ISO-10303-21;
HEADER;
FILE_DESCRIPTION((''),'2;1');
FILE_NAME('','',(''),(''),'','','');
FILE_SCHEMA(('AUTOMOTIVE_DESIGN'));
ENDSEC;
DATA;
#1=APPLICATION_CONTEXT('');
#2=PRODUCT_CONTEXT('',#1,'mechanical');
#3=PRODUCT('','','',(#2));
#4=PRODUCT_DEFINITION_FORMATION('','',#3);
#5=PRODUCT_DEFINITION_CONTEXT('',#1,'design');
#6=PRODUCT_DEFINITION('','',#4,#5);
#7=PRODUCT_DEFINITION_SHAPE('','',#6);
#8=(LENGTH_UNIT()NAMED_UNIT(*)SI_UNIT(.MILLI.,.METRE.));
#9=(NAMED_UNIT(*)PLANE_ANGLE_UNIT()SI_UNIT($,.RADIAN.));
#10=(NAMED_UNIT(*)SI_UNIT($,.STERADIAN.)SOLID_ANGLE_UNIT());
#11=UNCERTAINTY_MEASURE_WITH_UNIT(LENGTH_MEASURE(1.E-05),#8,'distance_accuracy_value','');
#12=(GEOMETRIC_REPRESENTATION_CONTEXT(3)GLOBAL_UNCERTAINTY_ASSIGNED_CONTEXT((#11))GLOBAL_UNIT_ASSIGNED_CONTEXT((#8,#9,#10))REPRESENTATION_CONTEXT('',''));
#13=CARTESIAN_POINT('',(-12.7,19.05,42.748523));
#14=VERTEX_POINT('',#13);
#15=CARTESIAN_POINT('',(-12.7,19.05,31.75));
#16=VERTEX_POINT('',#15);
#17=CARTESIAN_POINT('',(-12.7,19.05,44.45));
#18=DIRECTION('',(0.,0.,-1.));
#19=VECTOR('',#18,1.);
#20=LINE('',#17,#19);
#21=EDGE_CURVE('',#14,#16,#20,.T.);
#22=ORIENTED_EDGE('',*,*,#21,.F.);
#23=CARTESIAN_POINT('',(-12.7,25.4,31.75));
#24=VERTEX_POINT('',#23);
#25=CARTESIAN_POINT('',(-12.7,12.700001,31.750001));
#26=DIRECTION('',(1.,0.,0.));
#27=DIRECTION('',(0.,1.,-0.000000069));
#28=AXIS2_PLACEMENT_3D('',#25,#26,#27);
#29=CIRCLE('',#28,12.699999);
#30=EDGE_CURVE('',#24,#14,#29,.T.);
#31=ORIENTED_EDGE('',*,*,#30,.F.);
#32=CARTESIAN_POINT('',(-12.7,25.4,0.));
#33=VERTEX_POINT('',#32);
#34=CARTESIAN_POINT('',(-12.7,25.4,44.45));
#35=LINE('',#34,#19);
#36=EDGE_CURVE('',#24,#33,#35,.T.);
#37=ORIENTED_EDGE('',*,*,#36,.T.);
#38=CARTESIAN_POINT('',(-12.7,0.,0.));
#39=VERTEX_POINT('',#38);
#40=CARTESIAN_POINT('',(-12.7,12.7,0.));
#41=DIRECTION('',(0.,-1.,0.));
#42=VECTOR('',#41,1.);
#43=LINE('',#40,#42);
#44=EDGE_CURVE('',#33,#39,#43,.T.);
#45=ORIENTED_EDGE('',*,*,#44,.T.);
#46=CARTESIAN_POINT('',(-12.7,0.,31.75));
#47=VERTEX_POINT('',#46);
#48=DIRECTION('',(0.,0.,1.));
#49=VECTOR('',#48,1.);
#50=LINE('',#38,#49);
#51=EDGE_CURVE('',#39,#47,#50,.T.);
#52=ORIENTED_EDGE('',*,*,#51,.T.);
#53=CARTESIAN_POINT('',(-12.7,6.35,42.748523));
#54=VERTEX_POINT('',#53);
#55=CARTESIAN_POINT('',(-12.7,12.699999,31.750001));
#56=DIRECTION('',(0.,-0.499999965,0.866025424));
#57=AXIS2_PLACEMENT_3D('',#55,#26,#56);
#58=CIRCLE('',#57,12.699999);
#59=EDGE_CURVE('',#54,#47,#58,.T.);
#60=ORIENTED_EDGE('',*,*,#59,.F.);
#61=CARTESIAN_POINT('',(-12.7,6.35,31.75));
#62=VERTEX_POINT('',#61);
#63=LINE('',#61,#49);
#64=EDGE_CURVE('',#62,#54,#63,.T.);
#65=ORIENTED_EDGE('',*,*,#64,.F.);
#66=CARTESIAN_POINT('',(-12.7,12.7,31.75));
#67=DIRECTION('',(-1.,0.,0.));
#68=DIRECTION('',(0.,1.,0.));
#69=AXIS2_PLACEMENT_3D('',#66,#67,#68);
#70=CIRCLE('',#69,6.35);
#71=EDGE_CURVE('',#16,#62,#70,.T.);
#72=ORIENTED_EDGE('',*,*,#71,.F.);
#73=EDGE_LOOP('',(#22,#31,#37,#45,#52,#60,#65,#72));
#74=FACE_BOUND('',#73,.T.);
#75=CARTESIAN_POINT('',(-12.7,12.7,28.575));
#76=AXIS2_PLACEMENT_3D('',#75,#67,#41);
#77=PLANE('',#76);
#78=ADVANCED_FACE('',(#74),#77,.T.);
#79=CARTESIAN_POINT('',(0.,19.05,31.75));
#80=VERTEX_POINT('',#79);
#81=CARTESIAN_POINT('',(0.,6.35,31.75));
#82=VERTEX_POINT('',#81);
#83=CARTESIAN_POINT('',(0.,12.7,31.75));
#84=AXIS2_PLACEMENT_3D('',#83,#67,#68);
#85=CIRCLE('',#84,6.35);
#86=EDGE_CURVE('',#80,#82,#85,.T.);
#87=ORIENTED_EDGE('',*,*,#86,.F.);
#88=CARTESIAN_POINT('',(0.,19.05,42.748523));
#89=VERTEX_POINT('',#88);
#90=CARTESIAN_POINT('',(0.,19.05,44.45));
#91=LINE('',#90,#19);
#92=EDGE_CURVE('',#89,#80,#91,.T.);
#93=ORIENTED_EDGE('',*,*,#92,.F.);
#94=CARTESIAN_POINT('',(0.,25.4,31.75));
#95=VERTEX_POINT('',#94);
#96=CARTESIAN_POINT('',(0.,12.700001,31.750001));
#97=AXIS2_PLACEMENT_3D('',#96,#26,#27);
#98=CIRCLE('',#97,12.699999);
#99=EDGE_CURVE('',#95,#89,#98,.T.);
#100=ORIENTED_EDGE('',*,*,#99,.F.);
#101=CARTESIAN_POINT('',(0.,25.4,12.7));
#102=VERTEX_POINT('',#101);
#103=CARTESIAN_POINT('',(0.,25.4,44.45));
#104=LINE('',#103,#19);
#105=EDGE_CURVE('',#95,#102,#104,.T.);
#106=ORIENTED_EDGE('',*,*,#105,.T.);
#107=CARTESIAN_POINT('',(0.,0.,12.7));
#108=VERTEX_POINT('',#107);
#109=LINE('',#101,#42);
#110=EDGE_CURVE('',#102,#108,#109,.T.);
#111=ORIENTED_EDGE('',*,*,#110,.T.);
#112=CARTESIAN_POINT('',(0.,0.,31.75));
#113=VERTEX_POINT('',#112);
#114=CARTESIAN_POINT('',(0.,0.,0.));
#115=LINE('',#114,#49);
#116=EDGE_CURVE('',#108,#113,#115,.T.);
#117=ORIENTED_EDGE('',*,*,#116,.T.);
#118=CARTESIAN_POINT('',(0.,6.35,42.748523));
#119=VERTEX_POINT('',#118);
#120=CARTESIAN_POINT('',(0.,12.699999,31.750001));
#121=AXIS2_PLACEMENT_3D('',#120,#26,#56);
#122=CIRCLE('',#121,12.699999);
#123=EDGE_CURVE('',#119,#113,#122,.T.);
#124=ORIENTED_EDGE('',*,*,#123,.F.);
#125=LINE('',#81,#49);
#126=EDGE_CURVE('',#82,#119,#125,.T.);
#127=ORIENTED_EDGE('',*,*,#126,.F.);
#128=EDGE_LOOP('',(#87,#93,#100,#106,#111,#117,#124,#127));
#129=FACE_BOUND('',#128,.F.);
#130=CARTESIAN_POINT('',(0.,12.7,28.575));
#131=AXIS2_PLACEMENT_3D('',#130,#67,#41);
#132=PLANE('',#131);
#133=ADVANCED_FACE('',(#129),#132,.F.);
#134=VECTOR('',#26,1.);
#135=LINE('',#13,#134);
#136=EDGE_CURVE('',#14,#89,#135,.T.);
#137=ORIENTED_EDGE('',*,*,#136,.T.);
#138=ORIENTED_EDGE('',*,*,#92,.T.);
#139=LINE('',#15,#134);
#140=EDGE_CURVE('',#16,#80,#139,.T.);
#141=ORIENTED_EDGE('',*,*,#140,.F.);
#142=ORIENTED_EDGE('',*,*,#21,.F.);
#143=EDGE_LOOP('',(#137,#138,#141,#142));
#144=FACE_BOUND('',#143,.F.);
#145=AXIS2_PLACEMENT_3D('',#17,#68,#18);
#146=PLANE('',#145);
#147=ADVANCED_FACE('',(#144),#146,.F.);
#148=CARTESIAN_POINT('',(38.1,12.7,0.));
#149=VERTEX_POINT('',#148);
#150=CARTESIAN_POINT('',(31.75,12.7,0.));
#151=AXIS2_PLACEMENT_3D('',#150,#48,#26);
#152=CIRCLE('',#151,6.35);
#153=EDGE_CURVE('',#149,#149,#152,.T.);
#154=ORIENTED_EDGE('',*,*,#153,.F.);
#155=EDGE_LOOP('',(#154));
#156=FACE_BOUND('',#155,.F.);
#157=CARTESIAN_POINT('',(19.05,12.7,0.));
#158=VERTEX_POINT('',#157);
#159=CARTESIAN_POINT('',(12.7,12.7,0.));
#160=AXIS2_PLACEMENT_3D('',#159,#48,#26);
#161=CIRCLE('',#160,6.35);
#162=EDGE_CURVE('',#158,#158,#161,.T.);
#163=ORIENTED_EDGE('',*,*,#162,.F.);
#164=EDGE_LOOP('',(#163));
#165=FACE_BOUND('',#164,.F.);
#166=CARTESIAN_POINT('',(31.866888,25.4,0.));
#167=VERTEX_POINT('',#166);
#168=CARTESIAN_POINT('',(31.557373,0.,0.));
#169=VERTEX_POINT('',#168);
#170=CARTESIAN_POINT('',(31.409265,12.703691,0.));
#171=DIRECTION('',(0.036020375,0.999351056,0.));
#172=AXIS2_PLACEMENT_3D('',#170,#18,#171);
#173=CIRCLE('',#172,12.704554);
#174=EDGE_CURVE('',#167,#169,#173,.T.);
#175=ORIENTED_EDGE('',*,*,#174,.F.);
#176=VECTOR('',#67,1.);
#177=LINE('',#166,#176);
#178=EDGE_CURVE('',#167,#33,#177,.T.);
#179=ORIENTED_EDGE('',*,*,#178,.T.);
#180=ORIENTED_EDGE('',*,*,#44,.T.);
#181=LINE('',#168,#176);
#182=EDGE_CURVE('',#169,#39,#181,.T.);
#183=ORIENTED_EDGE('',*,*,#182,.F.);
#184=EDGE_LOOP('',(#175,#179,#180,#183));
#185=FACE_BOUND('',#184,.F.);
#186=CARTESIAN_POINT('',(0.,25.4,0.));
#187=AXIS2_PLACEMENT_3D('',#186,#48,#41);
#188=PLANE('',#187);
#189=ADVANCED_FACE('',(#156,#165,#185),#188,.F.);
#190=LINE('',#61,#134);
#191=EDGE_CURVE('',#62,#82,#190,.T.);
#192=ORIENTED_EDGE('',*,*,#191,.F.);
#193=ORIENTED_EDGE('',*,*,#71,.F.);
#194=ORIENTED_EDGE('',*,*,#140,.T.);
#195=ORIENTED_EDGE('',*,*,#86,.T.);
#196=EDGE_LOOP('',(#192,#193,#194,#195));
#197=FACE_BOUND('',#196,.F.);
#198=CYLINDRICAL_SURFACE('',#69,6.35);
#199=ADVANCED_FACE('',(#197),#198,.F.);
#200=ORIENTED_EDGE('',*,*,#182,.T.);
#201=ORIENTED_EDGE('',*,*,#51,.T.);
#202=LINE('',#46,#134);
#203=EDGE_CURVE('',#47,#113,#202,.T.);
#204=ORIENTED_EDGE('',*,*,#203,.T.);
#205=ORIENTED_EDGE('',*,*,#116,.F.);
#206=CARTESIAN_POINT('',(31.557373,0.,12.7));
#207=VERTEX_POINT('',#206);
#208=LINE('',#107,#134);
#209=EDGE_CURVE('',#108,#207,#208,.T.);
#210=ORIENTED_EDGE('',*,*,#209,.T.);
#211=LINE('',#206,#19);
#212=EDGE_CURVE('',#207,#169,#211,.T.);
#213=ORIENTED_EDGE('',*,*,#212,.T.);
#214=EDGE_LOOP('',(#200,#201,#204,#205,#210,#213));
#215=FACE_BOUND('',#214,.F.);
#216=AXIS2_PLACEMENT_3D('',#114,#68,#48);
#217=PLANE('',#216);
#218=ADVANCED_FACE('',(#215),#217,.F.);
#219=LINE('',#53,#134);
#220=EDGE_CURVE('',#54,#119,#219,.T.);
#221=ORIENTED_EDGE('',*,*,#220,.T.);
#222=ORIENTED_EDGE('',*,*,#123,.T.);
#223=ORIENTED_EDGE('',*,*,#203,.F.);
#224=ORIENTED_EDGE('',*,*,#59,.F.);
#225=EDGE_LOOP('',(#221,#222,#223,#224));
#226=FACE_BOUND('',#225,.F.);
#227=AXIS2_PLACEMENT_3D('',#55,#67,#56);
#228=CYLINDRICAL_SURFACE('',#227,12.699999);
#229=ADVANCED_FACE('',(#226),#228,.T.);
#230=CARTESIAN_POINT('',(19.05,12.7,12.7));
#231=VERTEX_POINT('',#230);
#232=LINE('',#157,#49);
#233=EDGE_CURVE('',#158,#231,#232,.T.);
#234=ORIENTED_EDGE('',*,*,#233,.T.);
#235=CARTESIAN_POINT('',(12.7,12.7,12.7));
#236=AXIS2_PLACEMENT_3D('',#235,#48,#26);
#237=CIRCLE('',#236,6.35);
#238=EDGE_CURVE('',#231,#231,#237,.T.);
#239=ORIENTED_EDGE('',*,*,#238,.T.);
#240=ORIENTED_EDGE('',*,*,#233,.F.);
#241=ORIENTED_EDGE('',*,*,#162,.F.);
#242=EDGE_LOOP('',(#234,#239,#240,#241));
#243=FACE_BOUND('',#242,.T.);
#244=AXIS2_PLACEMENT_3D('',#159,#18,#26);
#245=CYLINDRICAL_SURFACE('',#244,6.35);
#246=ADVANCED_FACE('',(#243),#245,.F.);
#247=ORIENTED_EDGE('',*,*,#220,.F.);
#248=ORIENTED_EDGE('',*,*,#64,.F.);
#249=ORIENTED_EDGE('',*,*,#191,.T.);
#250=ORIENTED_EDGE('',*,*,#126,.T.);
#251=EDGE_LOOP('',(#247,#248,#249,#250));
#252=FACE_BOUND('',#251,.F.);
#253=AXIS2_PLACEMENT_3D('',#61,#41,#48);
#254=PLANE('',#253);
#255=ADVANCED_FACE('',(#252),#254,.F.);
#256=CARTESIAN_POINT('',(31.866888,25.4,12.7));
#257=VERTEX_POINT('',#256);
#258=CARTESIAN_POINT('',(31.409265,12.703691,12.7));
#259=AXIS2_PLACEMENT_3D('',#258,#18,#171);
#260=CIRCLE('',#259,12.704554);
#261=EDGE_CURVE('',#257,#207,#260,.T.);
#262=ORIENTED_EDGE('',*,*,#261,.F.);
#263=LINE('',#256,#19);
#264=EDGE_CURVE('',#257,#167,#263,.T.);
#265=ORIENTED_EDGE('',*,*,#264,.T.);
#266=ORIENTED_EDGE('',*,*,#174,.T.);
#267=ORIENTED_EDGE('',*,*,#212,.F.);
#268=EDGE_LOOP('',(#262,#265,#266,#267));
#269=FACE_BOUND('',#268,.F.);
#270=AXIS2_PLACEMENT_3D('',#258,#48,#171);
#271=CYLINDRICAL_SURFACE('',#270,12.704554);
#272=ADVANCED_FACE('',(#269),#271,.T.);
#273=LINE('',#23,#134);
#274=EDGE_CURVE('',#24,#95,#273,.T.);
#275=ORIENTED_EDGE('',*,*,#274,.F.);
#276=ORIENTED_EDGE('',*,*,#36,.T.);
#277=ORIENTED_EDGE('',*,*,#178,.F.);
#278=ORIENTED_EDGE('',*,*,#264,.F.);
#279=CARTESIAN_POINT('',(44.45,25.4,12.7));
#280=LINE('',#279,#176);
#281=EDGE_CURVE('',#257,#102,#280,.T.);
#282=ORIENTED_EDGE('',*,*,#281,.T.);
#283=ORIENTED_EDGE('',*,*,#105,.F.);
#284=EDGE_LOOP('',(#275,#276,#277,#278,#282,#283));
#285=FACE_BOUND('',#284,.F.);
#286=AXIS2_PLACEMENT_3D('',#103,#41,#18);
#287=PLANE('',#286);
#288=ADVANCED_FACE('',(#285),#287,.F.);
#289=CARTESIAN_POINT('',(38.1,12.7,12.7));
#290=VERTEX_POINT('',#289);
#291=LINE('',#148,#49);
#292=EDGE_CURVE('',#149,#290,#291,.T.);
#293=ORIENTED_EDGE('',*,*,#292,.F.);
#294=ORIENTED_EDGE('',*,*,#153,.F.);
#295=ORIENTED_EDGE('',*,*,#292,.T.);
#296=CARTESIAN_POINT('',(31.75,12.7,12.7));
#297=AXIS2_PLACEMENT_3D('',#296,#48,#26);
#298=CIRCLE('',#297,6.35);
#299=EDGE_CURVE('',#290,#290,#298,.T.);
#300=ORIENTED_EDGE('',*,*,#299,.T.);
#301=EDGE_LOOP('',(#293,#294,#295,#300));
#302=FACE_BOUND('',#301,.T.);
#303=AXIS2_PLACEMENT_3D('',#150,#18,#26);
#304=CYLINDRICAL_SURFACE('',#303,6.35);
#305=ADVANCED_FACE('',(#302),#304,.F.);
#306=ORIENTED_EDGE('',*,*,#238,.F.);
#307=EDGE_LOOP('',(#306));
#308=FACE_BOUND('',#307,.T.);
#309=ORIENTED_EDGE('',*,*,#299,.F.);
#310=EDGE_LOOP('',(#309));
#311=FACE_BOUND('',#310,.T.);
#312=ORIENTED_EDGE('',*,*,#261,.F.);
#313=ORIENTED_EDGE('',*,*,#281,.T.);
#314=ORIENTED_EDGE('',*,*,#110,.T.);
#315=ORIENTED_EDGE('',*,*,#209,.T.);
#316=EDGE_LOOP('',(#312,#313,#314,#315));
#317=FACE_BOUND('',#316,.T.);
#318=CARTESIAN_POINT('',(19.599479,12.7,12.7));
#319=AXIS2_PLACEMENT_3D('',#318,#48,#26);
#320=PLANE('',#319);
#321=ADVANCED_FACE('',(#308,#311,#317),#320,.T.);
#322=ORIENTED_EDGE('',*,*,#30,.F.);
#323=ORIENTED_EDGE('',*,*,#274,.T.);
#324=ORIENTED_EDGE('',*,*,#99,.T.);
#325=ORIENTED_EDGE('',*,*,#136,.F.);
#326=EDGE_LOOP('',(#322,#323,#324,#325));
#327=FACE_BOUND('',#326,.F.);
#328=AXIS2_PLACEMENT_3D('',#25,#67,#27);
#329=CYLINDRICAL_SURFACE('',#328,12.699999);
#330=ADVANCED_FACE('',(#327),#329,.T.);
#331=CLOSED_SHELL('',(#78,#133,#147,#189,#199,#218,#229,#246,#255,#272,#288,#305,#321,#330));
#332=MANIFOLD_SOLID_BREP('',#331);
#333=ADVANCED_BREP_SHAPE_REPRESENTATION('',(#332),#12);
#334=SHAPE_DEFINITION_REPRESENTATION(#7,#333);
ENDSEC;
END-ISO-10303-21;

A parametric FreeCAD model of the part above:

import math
import FreeCAD as App
import Part
import Sketcher

V = App.Vector
Q = App.Units.Quantity

doc = App.newDocument("Part")
params = doc.addObject("Spreadsheet::Sheet", "Params")
for row, (alias, value) in enumerate([
    ("sketch1_diameter", "0.5 in"),
    ("sketch1_height", "1 in"),
    ("sketch1_width", "1.75 in"),
    ("pad1_length", "0.5 in"),
    ("sketch2_height", "1 in"),
    ("pocket1_length", "0.5 in"),
    ("sketch3_width", "1 in"),
    ("sketch3_height", "1.75 in"),
    ("pad2_length", "0.5 in"),
    ("sketch4_radius", "0.25 in"),
    ("pocket2_length", "0.5 in"),
    ("sketch5_radius", "0.5 in"),
    ("sketch5_height", "0.5 in"),
    ("sketch5_width", "0.25 in"),
    ("pocket3_length", "0.5 in"),
], start=1):
    params.set(f"A{row}", alias)
    params.set(f"B{row}", "=" + value)
    params.setAlias(f"B{row}", alias)

body = doc.addObject("PartDesign::Body", "Body")

sketch1 = body.newObject("Sketcher::SketchObject", "Sketch")
sketch1.AttachmentSupport = (doc.getObject("XY_Plane"), [""])
sketch1.MapMode = "FlatFace"
sketch1.addGeometry(Part.LineSegment(V(0, 25, 0), V(0, 0, 0)), False)
sketch1.addGeometry(Part.LineSegment(V(0, 0, 0), V(44, 0, 0)), False)
sketch1.addGeometry(Part.LineSegment(V(44, 0, 0), V(44, 25, 0)), False)
sketch1.addGeometry(Part.LineSegment(V(44, 25, 0), V(0, 25, 0)), False)
sketch1.addGeometry(Part.Circle(V(13, 13, 0), V(0, 0, 1), 6), False)
sketch1.addGeometry(Part.Circle(V(32, 13, 0), V(0, 0, 1), 6), False)
sketch1.addConstraint(Sketcher.Constraint("Coincident", 0, 2, 1, 1))
sketch1.addConstraint(Sketcher.Constraint("Coincident", 1, 2, 2, 1))
sketch1.addConstraint(Sketcher.Constraint("Coincident", 2, 2, 3, 1))
sketch1.addConstraint(Sketcher.Constraint("Coincident", 3, 2, 0, 1))
sketch1.addConstraint(Sketcher.Constraint("Vertical", 0))
sketch1.addConstraint(Sketcher.Constraint("Horizontal", 1))
sketch1.addConstraint(Sketcher.Constraint("Vertical", 2))
sketch1.addConstraint(Sketcher.Constraint("Horizontal", 3))
sketch1.addConstraint(Sketcher.Constraint("Coincident", 0, 2, -1, 1))
sketch1.addConstraint(Sketcher.Constraint("Equal", 4, 5))
sketch1.addConstraint(Sketcher.Constraint("Horizontal", 4, 3, 5, 3))
sketch1.addConstraint(Sketcher.Constraint("Diameter", 4, Q("0.5 in")))
sketch1.addConstraint(Sketcher.Constraint("DistanceY", 0, 2, 0, 1, Q("1 in")))
sketch1.addConstraint(Sketcher.Constraint("DistanceX", 1, 1, 1, 2, Q("1.75 in")))
sketch1.addConstraint(Sketcher.Constraint("DistanceX", -1, 1, 4, 3, Q("0.5 in")))
sketch1.addConstraint(Sketcher.Constraint("DistanceY", -1, 1, 4, 3, Q("0.5 in")))
sketch1.addConstraint(Sketcher.Constraint("DistanceX", 5, 3, 1, 2, Q("0.5 in")))
sketch1.setExpression("Constraints[11]", "Params.sketch1_diameter")
sketch1.setExpression("Constraints[12]", "Params.sketch1_height")
sketch1.setExpression("Constraints[13]", "Params.sketch1_width")
pad1 = body.newObject("PartDesign::Pad", "Pad")
pad1.Profile = sketch1
pad1.setExpression("Length", "Params.pad1_length")

sketch2 = body.newObject("Sketcher::SketchObject", "Sketch001")
sketch2.AttachmentSupport = (doc.getObject("XY_Plane"), [""])
sketch2.MapMode = "FlatFace"
sketch2.AttachmentOffset = App.Placement(V(0, 0, 0.5 * 25.4), App.Rotation())
sketch2.addGeometry(Part.ArcOfCircle(Part.Circle(V(31, 13, 0), V(0, 0, 1), 13), math.radians(-89), math.radians(88)), False)
sketch2.addGeometry(Part.LineSegment(V(32, 0, 0), V(44, 0, 0)), False)
sketch2.addGeometry(Part.LineSegment(V(44, 0, 0), V(44, 25, 0)), False)
sketch2.addGeometry(Part.LineSegment(V(44, 25, 0), V(32, 25, 0)), False)
sketch2.addConstraint(Sketcher.Constraint("Coincident", 0, 1, 1, 1))
sketch2.addConstraint(Sketcher.Constraint("Coincident", 1, 2, 2, 1))
sketch2.addConstraint(Sketcher.Constraint("Coincident", 2, 2, 3, 1))
sketch2.addConstraint(Sketcher.Constraint("Coincident", 3, 2, 0, 2))
sketch2.addConstraint(Sketcher.Constraint("Horizontal", 1))
sketch2.addConstraint(Sketcher.Constraint("Vertical", 2))
sketch2.addConstraint(Sketcher.Constraint("Horizontal", 3))
sketch2.addConstraint(Sketcher.Constraint("PointOnObject", 0, 1, -1))
sketch2.addConstraint(Sketcher.Constraint("DistanceY", 2, 1, 2, 2, Q("1 in")))
sketch2.addConstraint(Sketcher.Constraint("DistanceX", -1, 1, 1, 2, Q("1.75 in")))
sketch2.addConstraint(Sketcher.Constraint("Radius", 0, Q("12.704554 mm")))
sketch2.addConstraint(Sketcher.Constraint("DistanceX", 1, 1, 1, 2, Q("12.892627 mm")))
sketch2.addConstraint(Sketcher.Constraint("DistanceX", 3, 2, 3, 1, Q("12.583112 mm")))
sketch2.setExpression("Constraints[8]", "Params.sketch2_height")
pocket1 = body.newObject("PartDesign::Pocket", "Pocket")
pocket1.Profile = sketch2
pocket1.setExpression("Length", "Params.pocket1_length")

sketch3 = body.newObject("Sketcher::SketchObject", "Sketch002")
sketch3.AttachmentSupport = (doc.getObject("YZ_Plane"), [""])
sketch3.MapMode = "FlatFace"
sketch3.addGeometry(Part.LineSegment(V(25, 44, 0), V(25, 0, 0)), False)
sketch3.addGeometry(Part.LineSegment(V(25, 0, 0), V(0, 0, 0)), False)
sketch3.addGeometry(Part.LineSegment(V(0, 0, 0), V(0, 44, 0)), False)
sketch3.addGeometry(Part.LineSegment(V(0, 44, 0), V(25, 44, 0)), False)
sketch3.addConstraint(Sketcher.Constraint("Coincident", 0, 2, 1, 1))
sketch3.addConstraint(Sketcher.Constraint("Coincident", 1, 2, 2, 1))
sketch3.addConstraint(Sketcher.Constraint("Coincident", 2, 2, 3, 1))
sketch3.addConstraint(Sketcher.Constraint("Coincident", 3, 2, 0, 1))
sketch3.addConstraint(Sketcher.Constraint("Vertical", 0))
sketch3.addConstraint(Sketcher.Constraint("Horizontal", 1))
sketch3.addConstraint(Sketcher.Constraint("Vertical", 2))
sketch3.addConstraint(Sketcher.Constraint("Horizontal", 3))
sketch3.addConstraint(Sketcher.Constraint("Coincident", 1, 2, -1, 1))
sketch3.addConstraint(Sketcher.Constraint("DistanceX", 1, 2, 1, 1, Q("1 in")))
sketch3.addConstraint(Sketcher.Constraint("DistanceY", 0, 2, 0, 1, Q("1.75 in")))
sketch3.setExpression("Constraints[9]", "Params.sketch3_width")
sketch3.setExpression("Constraints[10]", "Params.sketch3_height")
pad2 = body.newObject("PartDesign::Pad", "Pad001")
pad2.Profile = sketch3
pad2.setExpression("Length", "Params.pad2_length")
pad2.Reversed = True

sketch4 = body.newObject("Sketcher::SketchObject", "Sketch003")
sketch4.AttachmentSupport = (doc.getObject("YZ_Plane"), [""])
sketch4.MapMode = "FlatFace"
sketch4.AttachmentOffset = App.Placement(V(0, 0, -0.5 * 25.4), App.Rotation())
sketch4.addGeometry(Part.LineSegment(V(6, 44, 0), V(19, 44, 0)), False)
sketch4.addGeometry(Part.LineSegment(V(19, 44, 0), V(19, 32, 0)), False)
sketch4.addGeometry(Part.ArcOfCircle(Part.Circle(V(13, 32, 0), V(0, 0, 1), 6), math.radians(180), math.radians(360)), False)
sketch4.addGeometry(Part.LineSegment(V(6, 32, 0), V(6, 44, 0)), False)
sketch4.addConstraint(Sketcher.Constraint("Coincident", 0, 2, 1, 1))
sketch4.addConstraint(Sketcher.Constraint("Tangent", 1, 2, 2, 2))
sketch4.addConstraint(Sketcher.Constraint("Tangent", 2, 1, 3, 1))
sketch4.addConstraint(Sketcher.Constraint("Coincident", 3, 2, 0, 1))
sketch4.addConstraint(Sketcher.Constraint("Horizontal", 0))
sketch4.addConstraint(Sketcher.Constraint("Vertical", 1))
sketch4.addConstraint(Sketcher.Constraint("Vertical", 3))
sketch4.addConstraint(Sketcher.Constraint("Equal", 0, 1))
sketch4.addConstraint(Sketcher.Constraint("Radius", 2, Q("0.25 in")))
sketch4.addConstraint(Sketcher.Constraint("DistanceX", -1, 1, 2, 3, Q("0.5 in")))
sketch4.addConstraint(Sketcher.Constraint("DistanceY", -1, 1, 2, 3, Q("1.25 in")))
sketch4.setExpression("Constraints[8]", "Params.sketch4_radius")
pocket2 = body.newObject("PartDesign::Pocket", "Pocket001")
pocket2.Profile = sketch4
pocket2.setExpression("Length", "Params.pocket2_length")
pocket2.Reversed = True

sketch5 = body.newObject("Sketcher::SketchObject", "Sketch004")
sketch5.AttachmentSupport = (doc.getObject("YZ_Plane"), [""])
sketch5.MapMode = "FlatFace"
sketch5.AttachmentOffset = App.Placement(V(0, 0, -0.5 * 25.4), App.Rotation())
sketch5.addGeometry(Part.ArcOfCircle(Part.Circle(V(12.7, 31.8, 0), V(0, 0, 1), 12.7), math.radians(0), math.radians(60)), False)
sketch5.addGeometry(Part.LineSegment(V(19.1, 42.7, 0), V(19.1, 44.5, 0)), False)
sketch5.addGeometry(Part.LineSegment(V(19.1, 44.5, 0), V(25.4, 44.5, 0)), False)
sketch5.addGeometry(Part.LineSegment(V(25.4, 44.5, 0), V(25.4, 31.8, 0)), False)
sketch5.addGeometry(Part.ArcOfCircle(Part.Circle(V(12.7, 31.8, 0), V(0, 0, 1), 12.7), math.radians(120), math.radians(180)), False)
sketch5.addGeometry(Part.LineSegment(V(0, 31.8, 0), V(0, 44.5, 0)), False)
sketch5.addGeometry(Part.LineSegment(V(0, 44.5, 0), V(6.3, 44.5, 0)), False)
sketch5.addGeometry(Part.LineSegment(V(6.3, 44.5, 0), V(6.3, 42.7, 0)), False)
sketch5.addConstraint(Sketcher.Constraint("Coincident", 0, 2, 1, 1))
sketch5.addConstraint(Sketcher.Constraint("Coincident", 1, 2, 2, 1))
sketch5.addConstraint(Sketcher.Constraint("Coincident", 2, 2, 3, 1))
sketch5.addConstraint(Sketcher.Constraint("Tangent", 3, 2, 0, 1))
sketch5.addConstraint(Sketcher.Constraint("Tangent", 4, 2, 5, 1))
sketch5.addConstraint(Sketcher.Constraint("Coincident", 5, 2, 6, 1))
sketch5.addConstraint(Sketcher.Constraint("Coincident", 6, 2, 7, 1))
sketch5.addConstraint(Sketcher.Constraint("Coincident", 7, 2, 4, 1))
sketch5.addConstraint(Sketcher.Constraint("Vertical", 1))
sketch5.addConstraint(Sketcher.Constraint("Horizontal", 2))
sketch5.addConstraint(Sketcher.Constraint("Vertical", 3))
sketch5.addConstraint(Sketcher.Constraint("Vertical", 5))
sketch5.addConstraint(Sketcher.Constraint("Horizontal", 6))
sketch5.addConstraint(Sketcher.Constraint("Vertical", 7))
sketch5.addConstraint(Sketcher.Constraint("Coincident", 4, 3, 0, 3))
sketch5.addConstraint(Sketcher.Constraint("Equal", 0, 4))
sketch5.addConstraint(Sketcher.Constraint("PointOnObject", 4, 2, -2))
sketch5.addConstraint(Sketcher.Constraint("Horizontal", 2, 2, 5, 2))
sketch5.addConstraint(Sketcher.Constraint("Horizontal", 0, 2, 7, 2))
sketch5.addConstraint(Sketcher.Constraint("Radius", 0, Q("0.5 in")))
sketch5.addConstraint(Sketcher.Constraint("DistanceY", 3, 2, 3, 1, Q("0.5 in")))
sketch5.addConstraint(Sketcher.Constraint("DistanceX", 2, 1, 2, 2, Q("0.25 in")))
sketch5.addConstraint(Sketcher.Constraint("DistanceY", -1, 1, 0, 3, Q("1.25 in")))
sketch5.setExpression("Constraints[19]", "Params.sketch5_radius")
sketch5.setExpression("Constraints[20]", "Params.sketch5_height")
sketch5.setExpression("Constraints[21]", "Params.sketch5_width")
pocket3 = body.newObject("PartDesign::Pocket", "Pocket002")
pocket3.Profile = sketch5
pocket3.setExpression("Length", "Params.pocket3_length")
pocket3.Reversed = True

doc.recompute()
